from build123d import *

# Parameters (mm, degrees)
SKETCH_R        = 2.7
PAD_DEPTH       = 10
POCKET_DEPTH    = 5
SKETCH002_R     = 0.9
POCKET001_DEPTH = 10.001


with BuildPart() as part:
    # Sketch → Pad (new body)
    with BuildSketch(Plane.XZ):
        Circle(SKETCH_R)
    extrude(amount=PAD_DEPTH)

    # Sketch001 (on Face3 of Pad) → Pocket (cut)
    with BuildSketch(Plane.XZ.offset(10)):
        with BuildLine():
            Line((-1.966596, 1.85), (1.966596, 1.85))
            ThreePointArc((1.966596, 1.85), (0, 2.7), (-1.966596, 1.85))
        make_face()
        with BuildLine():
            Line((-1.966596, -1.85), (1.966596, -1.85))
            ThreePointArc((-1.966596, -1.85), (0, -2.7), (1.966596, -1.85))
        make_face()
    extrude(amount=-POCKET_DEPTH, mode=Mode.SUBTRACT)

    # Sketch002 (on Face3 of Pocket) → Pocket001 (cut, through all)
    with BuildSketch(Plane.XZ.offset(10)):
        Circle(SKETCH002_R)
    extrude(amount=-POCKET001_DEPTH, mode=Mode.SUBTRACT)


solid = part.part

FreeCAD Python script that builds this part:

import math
import FreeCAD as App
import Part
import Sketcher
Q = App.Units.Quantity

doc = App.newDocument("Part")
body = doc.addObject("PartDesign::Body", "Body")

sketch1 = body.newObject("Sketcher::SketchObject", "Sketch")
sketch1.AttachmentSupport = (doc.getObject("XZ_Plane"), [""])
sketch1.MapMode = "FlatFace"
sketch1.addGeometry(Part.Circle(App.Vector(0, 0, 0), App.Vector(0, 0, 1), 2.7), False)
sketch1.addConstraint([
    Sketcher.Constraint("Coincident", 0, 3, -1, 1),
    Sketcher.Constraint("Diameter", 0, Q("5.4 mm")),
])
pad1 = body.newObject("PartDesign::Pad", "Pad")
pad1.Profile = sketch1
pad1.Length = 10

sketch2 = body.newObject("Sketcher::SketchObject", "Sketch001")
sketch2.AttachmentSupport = (doc.getObject("XZ_Plane"), [""])
sketch2.MapMode = "FlatFace"
sketch2.AttachmentOffset = App.Placement(App.Vector(0, 0, 10), App.Rotation())
sketch2.addGeometry([
    Part.LineSegment(App.Vector(-2, 1.9, 0), App.Vector(2, 1.9, 0)),
    Part.ArcOfCircle(Part.Circle(App.Vector(0, 0, 0), App.Vector(0, 0, 1), 2.7), math.radians(43), math.radians(137)),
    Part.LineSegment(App.Vector(2, -1.9, 0), App.Vector(-2, -1.9, 0)),
    Part.ArcOfCircle(Part.Circle(App.Vector(0, 0, 0), App.Vector(0, 0, 1), 2.7), math.radians(-137), math.radians(-43)),
], False)
sketch2.addConstraint([
    Sketcher.Constraint("Coincident", 0, 1, 1, 2),
    Sketcher.Constraint("Coincident", 1, 1, 0, 2),
    Sketcher.Constraint("Coincident", 2, 1, 3, 2),
    Sketcher.Constraint("Coincident", 3, 1, 2, 2),
    Sketcher.Constraint("Horizontal", 0),
    Sketcher.Constraint("Horizontal", 2),
    Sketcher.Constraint("Coincident", 1, 3, -1, 1),
    Sketcher.Constraint("Coincident", 3, 3, -1, 1),
    Sketcher.Constraint("Equal", 1, 3),
    Sketcher.Constraint("Vertical", 1, 1, 2, 1),
    Sketcher.Constraint("Radius", 1, Q("2.7 mm")),
    Sketcher.Constraint("DistanceY", 2, 1, 1, 1, Q("3.7 mm")),
])
pocket1 = body.newObject("PartDesign::Pocket", "Pocket")
pocket1.Profile = sketch2
pocket1.Length = 5

sketch3 = body.newObject("Sketcher::SketchObject", "Sketch002")
sketch3.AttachmentSupport = (doc.getObject("XZ_Plane"), [""])
sketch3.MapMode = "FlatFace"
sketch3.AttachmentOffset = App.Placement(App.Vector(0, 0, 10), App.Rotation())
sketch3.addGeometry(Part.Circle(App.Vector(0, 0, 0), App.Vector(0, 0, 1), 0.9), False)
sketch3.addConstraint([
    Sketcher.Constraint("Coincident", 0, 3, -1, 1),
    Sketcher.Constraint("Diameter", 0, Q("1.8 mm")),
])
pocket2 = body.newObject("PartDesign::Pocket", "Pocket001")
pocket2.Profile = sketch3
pocket2.Type = "ThroughAll"

doc.recompute()
